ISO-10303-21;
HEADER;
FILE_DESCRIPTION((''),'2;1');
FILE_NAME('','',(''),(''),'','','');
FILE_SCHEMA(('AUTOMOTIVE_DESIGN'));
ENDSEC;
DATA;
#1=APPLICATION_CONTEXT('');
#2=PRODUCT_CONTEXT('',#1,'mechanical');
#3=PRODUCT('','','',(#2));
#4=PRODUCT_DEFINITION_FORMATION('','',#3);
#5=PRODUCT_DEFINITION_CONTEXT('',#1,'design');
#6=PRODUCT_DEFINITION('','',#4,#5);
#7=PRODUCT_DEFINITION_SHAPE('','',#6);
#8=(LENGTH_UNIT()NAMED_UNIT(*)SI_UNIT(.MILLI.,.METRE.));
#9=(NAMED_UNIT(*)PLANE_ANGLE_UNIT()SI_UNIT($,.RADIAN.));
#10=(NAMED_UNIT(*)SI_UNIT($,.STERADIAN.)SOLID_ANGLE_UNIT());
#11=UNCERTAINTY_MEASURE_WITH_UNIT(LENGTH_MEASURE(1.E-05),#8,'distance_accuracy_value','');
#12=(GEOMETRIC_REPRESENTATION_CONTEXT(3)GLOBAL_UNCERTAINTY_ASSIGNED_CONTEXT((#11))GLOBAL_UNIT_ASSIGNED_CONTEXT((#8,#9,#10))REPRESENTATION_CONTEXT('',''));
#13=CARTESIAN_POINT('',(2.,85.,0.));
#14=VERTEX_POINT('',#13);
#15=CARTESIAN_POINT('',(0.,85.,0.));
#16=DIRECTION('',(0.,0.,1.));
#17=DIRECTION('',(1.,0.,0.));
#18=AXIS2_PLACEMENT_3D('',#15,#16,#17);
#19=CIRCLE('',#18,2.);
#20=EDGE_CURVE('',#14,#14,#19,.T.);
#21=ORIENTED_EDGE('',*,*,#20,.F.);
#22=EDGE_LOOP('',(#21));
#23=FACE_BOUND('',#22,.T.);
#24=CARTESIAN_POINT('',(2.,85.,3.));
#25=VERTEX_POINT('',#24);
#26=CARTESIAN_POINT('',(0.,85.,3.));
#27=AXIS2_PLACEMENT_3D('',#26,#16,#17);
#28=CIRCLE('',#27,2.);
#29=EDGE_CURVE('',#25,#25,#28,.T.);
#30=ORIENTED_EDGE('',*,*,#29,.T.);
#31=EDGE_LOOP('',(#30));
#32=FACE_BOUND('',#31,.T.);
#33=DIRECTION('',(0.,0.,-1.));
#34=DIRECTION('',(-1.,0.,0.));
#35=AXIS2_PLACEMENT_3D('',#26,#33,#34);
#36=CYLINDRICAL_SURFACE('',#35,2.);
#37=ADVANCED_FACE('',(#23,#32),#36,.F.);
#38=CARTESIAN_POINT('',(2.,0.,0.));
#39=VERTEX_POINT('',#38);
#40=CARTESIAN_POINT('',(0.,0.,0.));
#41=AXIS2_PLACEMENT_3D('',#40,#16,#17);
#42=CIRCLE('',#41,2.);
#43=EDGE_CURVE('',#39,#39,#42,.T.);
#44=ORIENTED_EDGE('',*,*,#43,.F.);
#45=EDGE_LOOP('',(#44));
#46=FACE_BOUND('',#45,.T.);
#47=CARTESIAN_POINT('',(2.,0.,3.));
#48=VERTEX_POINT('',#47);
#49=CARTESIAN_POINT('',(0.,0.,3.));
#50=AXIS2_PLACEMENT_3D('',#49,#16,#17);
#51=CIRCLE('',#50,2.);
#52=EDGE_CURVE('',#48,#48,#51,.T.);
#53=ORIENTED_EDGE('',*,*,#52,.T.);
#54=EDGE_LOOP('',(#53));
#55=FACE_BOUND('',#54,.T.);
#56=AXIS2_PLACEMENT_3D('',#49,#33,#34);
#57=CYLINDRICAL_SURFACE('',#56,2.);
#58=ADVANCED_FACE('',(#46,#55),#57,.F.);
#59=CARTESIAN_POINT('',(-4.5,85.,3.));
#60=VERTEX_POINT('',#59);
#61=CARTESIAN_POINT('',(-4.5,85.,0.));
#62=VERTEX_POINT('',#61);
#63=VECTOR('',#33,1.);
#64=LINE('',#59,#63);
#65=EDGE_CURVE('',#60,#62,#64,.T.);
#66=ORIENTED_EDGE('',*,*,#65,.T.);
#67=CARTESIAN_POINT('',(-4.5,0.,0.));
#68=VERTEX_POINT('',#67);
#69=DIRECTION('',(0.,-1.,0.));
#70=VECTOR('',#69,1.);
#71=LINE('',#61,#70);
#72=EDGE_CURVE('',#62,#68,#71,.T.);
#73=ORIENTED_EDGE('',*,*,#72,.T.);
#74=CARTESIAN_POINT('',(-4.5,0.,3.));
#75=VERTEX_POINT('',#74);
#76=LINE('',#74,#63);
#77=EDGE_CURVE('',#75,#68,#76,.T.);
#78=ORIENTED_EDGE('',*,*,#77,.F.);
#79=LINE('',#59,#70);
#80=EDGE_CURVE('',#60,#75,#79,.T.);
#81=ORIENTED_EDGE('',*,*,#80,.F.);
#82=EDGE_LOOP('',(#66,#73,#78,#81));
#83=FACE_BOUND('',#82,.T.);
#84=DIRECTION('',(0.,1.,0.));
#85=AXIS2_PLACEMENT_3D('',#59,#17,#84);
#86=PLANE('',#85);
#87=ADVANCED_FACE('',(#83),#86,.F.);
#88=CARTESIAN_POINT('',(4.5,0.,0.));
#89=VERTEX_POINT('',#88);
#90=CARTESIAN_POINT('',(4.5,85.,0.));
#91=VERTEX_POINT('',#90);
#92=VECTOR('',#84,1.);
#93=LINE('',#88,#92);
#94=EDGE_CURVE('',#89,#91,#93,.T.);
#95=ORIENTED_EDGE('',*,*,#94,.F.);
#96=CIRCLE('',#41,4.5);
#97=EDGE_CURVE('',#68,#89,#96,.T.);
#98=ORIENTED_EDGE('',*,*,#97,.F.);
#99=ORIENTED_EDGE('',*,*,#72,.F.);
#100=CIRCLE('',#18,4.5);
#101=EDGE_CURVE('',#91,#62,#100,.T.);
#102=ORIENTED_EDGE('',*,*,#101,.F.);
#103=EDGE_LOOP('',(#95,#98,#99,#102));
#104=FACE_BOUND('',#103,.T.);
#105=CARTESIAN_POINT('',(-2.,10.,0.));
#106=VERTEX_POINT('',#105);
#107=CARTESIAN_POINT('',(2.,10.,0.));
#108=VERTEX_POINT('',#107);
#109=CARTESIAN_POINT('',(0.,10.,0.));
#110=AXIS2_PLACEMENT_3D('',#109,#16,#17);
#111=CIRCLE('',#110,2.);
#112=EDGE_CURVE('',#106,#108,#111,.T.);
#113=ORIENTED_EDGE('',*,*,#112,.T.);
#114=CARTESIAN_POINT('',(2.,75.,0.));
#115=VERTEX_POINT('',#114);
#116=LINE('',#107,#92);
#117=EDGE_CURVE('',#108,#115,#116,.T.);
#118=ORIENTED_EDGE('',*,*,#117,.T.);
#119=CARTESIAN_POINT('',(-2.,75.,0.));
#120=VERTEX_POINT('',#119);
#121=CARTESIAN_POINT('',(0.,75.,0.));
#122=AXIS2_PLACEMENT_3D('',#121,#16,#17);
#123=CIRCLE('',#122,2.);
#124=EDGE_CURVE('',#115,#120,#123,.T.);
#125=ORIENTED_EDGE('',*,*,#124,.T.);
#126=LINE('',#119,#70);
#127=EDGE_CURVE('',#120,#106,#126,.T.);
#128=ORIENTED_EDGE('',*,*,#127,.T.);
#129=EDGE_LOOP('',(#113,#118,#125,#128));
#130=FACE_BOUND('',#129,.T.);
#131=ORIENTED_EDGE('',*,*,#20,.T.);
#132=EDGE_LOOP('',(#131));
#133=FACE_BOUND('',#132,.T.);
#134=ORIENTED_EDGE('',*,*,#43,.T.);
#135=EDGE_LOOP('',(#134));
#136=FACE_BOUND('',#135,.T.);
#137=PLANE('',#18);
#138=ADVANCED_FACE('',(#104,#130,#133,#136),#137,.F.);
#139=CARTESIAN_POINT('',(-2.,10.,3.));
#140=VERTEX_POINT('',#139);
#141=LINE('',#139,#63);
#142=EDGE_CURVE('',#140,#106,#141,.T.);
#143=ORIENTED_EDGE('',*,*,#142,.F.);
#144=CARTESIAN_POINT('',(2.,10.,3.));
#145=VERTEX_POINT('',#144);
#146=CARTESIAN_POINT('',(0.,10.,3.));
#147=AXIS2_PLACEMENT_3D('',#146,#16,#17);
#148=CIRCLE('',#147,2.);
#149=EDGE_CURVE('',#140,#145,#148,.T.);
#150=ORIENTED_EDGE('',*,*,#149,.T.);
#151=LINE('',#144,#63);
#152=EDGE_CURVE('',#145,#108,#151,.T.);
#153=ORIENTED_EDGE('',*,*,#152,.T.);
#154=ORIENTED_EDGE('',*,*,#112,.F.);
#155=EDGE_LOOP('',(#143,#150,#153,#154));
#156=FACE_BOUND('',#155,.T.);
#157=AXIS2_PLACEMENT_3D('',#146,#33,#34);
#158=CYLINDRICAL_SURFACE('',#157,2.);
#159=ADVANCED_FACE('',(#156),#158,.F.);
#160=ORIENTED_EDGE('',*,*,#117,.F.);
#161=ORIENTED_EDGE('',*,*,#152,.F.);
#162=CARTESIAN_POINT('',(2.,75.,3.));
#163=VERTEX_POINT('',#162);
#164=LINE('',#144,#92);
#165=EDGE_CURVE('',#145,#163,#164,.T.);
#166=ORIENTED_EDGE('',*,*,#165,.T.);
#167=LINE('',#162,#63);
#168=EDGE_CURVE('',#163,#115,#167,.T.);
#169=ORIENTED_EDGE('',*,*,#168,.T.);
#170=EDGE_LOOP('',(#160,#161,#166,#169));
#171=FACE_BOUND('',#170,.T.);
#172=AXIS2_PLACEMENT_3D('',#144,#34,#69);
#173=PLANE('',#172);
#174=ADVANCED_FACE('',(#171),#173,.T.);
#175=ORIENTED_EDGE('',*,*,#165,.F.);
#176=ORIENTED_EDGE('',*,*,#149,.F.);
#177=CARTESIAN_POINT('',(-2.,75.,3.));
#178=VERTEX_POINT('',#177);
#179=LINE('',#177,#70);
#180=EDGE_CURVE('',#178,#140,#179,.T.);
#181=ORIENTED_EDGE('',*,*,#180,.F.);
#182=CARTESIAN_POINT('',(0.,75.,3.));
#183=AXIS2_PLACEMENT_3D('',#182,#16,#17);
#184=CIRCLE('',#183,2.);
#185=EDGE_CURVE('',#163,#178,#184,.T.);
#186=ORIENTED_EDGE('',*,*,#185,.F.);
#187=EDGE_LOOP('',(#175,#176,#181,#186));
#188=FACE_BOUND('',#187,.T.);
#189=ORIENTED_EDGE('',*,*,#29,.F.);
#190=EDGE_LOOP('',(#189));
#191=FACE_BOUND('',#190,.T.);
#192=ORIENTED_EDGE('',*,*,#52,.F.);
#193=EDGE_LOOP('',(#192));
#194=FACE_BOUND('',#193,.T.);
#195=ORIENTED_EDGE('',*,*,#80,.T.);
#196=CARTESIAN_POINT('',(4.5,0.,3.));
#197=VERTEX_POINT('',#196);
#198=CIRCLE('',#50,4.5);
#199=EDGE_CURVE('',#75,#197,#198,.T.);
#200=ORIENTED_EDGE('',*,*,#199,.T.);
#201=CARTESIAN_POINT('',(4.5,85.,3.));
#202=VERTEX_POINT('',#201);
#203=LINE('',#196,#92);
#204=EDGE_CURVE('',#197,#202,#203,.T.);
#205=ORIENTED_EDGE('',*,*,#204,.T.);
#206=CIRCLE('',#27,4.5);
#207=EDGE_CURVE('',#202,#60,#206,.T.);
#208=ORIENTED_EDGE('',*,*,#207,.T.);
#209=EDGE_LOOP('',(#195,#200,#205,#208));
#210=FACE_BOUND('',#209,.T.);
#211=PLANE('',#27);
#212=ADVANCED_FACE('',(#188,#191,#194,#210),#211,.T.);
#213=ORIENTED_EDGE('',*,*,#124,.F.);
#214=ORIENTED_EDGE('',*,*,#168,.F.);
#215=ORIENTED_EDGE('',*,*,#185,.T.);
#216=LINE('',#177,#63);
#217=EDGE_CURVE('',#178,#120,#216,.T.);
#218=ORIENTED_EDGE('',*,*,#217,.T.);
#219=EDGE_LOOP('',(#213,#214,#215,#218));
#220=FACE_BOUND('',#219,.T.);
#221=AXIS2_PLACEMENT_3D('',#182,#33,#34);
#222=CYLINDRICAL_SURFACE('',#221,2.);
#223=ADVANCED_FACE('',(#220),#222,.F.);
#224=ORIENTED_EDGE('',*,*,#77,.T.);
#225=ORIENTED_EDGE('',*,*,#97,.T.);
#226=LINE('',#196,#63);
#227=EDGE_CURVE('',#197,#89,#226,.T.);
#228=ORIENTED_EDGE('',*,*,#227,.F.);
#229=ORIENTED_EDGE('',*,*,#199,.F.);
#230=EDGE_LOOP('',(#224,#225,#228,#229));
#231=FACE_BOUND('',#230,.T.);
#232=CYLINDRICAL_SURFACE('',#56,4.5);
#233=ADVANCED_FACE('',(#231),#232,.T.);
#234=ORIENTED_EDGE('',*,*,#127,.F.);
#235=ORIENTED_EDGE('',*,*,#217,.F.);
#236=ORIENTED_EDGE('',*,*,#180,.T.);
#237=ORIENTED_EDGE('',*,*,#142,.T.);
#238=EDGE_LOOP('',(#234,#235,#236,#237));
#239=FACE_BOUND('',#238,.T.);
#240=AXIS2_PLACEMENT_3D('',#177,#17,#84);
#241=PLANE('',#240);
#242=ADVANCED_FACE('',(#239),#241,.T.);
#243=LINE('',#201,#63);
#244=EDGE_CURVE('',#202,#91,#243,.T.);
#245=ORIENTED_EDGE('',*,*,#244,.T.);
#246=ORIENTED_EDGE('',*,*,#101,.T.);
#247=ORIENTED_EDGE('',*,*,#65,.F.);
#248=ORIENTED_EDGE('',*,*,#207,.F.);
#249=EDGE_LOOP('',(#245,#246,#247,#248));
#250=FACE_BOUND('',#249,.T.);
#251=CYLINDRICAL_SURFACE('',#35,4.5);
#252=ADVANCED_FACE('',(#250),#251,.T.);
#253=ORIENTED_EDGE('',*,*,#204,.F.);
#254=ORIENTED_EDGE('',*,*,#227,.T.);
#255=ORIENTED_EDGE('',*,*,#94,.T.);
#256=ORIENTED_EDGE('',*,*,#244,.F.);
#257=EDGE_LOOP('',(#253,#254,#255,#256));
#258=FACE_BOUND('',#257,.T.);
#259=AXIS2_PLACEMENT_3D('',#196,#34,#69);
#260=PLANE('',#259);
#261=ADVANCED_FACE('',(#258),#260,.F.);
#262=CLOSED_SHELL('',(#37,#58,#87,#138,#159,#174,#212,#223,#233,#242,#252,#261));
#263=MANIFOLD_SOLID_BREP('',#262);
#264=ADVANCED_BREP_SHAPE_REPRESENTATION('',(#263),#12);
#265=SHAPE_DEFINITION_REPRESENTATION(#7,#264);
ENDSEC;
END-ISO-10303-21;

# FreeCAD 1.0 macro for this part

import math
import FreeCAD as App
import Part
import Sketcher

doc = App.newDocument("Part")
body = doc.addObject("PartDesign::Body", "Body")

sketch1 = body.newObject("Sketcher::SketchObject", "Sketch")
sketch1.AttachmentSupport = (doc.getObject("XY_Plane"), [""])
sketch1.MapMode = "FlatFace"
sketch1.addGeometry([
    Part.LineSegment(App.Vector(-4.5, 85, 0), App.Vector(-4.5, 0, 0)),
    Part.ArcOfCircle(Part.Circle(App.Vector(0, 0, 0), App.Vector(0, 0, 1), 4.5), math.radians(180), math.radians(360)),
    Part.LineSegment(App.Vector(4.5, 0, 0), App.Vector(4.5, 85, 0)),
    Part.ArcOfCircle(Part.Circle(App.Vector(0, 85, 0), App.Vector(0, 0, 1), 4.5), math.radians(0), math.radians(180)),
    Part.Circle(App.Vector(0, 0, 0), App.Vector(0, 0, 1), 2),
    Part.LineSegment(App.Vector(-2, 10, 0), App.Vector(-2, 75, 0)),
    Part.ArcOfCircle(Part.Circle(App.Vector(0, 75, 0), App.Vector(0, 0, 1), 2), math.radians(0), math.radians(180)),
    Part.LineSegment(App.Vector(2, 75, 0), App.Vector(2, 10, 0)),
    Part.ArcOfCircle(Part.Circle(App.Vector(0, 10, 0), App.Vector(0, 0, 1), 2), math.radians(180), math.radians(360)),
    Part.Circle(App.Vector(0, 85, 0), App.Vector(0, 0, 1), 2),
], False)
sketch1.addConstraint([
    Sketcher.Constraint("Tangent", 0, 2, 1, 1),
    Sketcher.Constraint("Tangent", 1, 2, 2, 1),
    Sketcher.Constraint("Tangent", 2, 2, 3, 1),
    Sketcher.Constraint("Tangent", 3, 2, 0, 1),
    Sketcher.Constraint("Tangent", 5, 2, 6, 2),
    Sketcher.Constraint("Tangent", 6, 1, 7, 1),
    Sketcher.Constraint("Tangent", 7, 2, 8, 2),
    Sketcher.Constraint("Tangent", 8, 1, 5, 1),
    Sketcher.Constraint("Vertical", 0),
    Sketcher.Constraint("Vertical", 2),
    Sketcher.Constraint("Vertical", 5),
    Sketcher.Constraint("Vertical", 7),
    Sketcher.Constraint("Coincident", 1, 3, -1, 1),
    Sketcher.Constraint("Coincident", 4, 3, -1, 1),
    Sketcher.Constraint("Coincident", 9, 3, 3, 3),
    Sketcher.Constraint("Equal", 4, 6),
    Sketcher.Constraint("Equal", 8, 9),
    Sketcher.Constraint("PointOnObject", 6, 3, -2),
    Sketcher.Constraint("Diameter", 4, 4.0),
    Sketcher.Constraint("Radius", 1, 4.5),
    Sketcher.Constraint("DistanceY", 0, 2, 0, 1, 85.0),
    Sketcher.Constraint("DistanceY", 5, 1, 5, 2, 65.0),
    Sketcher.Constraint("DistanceY", -1, 1, 6, 3, 75.0),
])
pad1 = body.newObject("PartDesign::Pad", "Pad")
pad1.Profile = sketch1
pad1.Length = 3

doc.recompute()
